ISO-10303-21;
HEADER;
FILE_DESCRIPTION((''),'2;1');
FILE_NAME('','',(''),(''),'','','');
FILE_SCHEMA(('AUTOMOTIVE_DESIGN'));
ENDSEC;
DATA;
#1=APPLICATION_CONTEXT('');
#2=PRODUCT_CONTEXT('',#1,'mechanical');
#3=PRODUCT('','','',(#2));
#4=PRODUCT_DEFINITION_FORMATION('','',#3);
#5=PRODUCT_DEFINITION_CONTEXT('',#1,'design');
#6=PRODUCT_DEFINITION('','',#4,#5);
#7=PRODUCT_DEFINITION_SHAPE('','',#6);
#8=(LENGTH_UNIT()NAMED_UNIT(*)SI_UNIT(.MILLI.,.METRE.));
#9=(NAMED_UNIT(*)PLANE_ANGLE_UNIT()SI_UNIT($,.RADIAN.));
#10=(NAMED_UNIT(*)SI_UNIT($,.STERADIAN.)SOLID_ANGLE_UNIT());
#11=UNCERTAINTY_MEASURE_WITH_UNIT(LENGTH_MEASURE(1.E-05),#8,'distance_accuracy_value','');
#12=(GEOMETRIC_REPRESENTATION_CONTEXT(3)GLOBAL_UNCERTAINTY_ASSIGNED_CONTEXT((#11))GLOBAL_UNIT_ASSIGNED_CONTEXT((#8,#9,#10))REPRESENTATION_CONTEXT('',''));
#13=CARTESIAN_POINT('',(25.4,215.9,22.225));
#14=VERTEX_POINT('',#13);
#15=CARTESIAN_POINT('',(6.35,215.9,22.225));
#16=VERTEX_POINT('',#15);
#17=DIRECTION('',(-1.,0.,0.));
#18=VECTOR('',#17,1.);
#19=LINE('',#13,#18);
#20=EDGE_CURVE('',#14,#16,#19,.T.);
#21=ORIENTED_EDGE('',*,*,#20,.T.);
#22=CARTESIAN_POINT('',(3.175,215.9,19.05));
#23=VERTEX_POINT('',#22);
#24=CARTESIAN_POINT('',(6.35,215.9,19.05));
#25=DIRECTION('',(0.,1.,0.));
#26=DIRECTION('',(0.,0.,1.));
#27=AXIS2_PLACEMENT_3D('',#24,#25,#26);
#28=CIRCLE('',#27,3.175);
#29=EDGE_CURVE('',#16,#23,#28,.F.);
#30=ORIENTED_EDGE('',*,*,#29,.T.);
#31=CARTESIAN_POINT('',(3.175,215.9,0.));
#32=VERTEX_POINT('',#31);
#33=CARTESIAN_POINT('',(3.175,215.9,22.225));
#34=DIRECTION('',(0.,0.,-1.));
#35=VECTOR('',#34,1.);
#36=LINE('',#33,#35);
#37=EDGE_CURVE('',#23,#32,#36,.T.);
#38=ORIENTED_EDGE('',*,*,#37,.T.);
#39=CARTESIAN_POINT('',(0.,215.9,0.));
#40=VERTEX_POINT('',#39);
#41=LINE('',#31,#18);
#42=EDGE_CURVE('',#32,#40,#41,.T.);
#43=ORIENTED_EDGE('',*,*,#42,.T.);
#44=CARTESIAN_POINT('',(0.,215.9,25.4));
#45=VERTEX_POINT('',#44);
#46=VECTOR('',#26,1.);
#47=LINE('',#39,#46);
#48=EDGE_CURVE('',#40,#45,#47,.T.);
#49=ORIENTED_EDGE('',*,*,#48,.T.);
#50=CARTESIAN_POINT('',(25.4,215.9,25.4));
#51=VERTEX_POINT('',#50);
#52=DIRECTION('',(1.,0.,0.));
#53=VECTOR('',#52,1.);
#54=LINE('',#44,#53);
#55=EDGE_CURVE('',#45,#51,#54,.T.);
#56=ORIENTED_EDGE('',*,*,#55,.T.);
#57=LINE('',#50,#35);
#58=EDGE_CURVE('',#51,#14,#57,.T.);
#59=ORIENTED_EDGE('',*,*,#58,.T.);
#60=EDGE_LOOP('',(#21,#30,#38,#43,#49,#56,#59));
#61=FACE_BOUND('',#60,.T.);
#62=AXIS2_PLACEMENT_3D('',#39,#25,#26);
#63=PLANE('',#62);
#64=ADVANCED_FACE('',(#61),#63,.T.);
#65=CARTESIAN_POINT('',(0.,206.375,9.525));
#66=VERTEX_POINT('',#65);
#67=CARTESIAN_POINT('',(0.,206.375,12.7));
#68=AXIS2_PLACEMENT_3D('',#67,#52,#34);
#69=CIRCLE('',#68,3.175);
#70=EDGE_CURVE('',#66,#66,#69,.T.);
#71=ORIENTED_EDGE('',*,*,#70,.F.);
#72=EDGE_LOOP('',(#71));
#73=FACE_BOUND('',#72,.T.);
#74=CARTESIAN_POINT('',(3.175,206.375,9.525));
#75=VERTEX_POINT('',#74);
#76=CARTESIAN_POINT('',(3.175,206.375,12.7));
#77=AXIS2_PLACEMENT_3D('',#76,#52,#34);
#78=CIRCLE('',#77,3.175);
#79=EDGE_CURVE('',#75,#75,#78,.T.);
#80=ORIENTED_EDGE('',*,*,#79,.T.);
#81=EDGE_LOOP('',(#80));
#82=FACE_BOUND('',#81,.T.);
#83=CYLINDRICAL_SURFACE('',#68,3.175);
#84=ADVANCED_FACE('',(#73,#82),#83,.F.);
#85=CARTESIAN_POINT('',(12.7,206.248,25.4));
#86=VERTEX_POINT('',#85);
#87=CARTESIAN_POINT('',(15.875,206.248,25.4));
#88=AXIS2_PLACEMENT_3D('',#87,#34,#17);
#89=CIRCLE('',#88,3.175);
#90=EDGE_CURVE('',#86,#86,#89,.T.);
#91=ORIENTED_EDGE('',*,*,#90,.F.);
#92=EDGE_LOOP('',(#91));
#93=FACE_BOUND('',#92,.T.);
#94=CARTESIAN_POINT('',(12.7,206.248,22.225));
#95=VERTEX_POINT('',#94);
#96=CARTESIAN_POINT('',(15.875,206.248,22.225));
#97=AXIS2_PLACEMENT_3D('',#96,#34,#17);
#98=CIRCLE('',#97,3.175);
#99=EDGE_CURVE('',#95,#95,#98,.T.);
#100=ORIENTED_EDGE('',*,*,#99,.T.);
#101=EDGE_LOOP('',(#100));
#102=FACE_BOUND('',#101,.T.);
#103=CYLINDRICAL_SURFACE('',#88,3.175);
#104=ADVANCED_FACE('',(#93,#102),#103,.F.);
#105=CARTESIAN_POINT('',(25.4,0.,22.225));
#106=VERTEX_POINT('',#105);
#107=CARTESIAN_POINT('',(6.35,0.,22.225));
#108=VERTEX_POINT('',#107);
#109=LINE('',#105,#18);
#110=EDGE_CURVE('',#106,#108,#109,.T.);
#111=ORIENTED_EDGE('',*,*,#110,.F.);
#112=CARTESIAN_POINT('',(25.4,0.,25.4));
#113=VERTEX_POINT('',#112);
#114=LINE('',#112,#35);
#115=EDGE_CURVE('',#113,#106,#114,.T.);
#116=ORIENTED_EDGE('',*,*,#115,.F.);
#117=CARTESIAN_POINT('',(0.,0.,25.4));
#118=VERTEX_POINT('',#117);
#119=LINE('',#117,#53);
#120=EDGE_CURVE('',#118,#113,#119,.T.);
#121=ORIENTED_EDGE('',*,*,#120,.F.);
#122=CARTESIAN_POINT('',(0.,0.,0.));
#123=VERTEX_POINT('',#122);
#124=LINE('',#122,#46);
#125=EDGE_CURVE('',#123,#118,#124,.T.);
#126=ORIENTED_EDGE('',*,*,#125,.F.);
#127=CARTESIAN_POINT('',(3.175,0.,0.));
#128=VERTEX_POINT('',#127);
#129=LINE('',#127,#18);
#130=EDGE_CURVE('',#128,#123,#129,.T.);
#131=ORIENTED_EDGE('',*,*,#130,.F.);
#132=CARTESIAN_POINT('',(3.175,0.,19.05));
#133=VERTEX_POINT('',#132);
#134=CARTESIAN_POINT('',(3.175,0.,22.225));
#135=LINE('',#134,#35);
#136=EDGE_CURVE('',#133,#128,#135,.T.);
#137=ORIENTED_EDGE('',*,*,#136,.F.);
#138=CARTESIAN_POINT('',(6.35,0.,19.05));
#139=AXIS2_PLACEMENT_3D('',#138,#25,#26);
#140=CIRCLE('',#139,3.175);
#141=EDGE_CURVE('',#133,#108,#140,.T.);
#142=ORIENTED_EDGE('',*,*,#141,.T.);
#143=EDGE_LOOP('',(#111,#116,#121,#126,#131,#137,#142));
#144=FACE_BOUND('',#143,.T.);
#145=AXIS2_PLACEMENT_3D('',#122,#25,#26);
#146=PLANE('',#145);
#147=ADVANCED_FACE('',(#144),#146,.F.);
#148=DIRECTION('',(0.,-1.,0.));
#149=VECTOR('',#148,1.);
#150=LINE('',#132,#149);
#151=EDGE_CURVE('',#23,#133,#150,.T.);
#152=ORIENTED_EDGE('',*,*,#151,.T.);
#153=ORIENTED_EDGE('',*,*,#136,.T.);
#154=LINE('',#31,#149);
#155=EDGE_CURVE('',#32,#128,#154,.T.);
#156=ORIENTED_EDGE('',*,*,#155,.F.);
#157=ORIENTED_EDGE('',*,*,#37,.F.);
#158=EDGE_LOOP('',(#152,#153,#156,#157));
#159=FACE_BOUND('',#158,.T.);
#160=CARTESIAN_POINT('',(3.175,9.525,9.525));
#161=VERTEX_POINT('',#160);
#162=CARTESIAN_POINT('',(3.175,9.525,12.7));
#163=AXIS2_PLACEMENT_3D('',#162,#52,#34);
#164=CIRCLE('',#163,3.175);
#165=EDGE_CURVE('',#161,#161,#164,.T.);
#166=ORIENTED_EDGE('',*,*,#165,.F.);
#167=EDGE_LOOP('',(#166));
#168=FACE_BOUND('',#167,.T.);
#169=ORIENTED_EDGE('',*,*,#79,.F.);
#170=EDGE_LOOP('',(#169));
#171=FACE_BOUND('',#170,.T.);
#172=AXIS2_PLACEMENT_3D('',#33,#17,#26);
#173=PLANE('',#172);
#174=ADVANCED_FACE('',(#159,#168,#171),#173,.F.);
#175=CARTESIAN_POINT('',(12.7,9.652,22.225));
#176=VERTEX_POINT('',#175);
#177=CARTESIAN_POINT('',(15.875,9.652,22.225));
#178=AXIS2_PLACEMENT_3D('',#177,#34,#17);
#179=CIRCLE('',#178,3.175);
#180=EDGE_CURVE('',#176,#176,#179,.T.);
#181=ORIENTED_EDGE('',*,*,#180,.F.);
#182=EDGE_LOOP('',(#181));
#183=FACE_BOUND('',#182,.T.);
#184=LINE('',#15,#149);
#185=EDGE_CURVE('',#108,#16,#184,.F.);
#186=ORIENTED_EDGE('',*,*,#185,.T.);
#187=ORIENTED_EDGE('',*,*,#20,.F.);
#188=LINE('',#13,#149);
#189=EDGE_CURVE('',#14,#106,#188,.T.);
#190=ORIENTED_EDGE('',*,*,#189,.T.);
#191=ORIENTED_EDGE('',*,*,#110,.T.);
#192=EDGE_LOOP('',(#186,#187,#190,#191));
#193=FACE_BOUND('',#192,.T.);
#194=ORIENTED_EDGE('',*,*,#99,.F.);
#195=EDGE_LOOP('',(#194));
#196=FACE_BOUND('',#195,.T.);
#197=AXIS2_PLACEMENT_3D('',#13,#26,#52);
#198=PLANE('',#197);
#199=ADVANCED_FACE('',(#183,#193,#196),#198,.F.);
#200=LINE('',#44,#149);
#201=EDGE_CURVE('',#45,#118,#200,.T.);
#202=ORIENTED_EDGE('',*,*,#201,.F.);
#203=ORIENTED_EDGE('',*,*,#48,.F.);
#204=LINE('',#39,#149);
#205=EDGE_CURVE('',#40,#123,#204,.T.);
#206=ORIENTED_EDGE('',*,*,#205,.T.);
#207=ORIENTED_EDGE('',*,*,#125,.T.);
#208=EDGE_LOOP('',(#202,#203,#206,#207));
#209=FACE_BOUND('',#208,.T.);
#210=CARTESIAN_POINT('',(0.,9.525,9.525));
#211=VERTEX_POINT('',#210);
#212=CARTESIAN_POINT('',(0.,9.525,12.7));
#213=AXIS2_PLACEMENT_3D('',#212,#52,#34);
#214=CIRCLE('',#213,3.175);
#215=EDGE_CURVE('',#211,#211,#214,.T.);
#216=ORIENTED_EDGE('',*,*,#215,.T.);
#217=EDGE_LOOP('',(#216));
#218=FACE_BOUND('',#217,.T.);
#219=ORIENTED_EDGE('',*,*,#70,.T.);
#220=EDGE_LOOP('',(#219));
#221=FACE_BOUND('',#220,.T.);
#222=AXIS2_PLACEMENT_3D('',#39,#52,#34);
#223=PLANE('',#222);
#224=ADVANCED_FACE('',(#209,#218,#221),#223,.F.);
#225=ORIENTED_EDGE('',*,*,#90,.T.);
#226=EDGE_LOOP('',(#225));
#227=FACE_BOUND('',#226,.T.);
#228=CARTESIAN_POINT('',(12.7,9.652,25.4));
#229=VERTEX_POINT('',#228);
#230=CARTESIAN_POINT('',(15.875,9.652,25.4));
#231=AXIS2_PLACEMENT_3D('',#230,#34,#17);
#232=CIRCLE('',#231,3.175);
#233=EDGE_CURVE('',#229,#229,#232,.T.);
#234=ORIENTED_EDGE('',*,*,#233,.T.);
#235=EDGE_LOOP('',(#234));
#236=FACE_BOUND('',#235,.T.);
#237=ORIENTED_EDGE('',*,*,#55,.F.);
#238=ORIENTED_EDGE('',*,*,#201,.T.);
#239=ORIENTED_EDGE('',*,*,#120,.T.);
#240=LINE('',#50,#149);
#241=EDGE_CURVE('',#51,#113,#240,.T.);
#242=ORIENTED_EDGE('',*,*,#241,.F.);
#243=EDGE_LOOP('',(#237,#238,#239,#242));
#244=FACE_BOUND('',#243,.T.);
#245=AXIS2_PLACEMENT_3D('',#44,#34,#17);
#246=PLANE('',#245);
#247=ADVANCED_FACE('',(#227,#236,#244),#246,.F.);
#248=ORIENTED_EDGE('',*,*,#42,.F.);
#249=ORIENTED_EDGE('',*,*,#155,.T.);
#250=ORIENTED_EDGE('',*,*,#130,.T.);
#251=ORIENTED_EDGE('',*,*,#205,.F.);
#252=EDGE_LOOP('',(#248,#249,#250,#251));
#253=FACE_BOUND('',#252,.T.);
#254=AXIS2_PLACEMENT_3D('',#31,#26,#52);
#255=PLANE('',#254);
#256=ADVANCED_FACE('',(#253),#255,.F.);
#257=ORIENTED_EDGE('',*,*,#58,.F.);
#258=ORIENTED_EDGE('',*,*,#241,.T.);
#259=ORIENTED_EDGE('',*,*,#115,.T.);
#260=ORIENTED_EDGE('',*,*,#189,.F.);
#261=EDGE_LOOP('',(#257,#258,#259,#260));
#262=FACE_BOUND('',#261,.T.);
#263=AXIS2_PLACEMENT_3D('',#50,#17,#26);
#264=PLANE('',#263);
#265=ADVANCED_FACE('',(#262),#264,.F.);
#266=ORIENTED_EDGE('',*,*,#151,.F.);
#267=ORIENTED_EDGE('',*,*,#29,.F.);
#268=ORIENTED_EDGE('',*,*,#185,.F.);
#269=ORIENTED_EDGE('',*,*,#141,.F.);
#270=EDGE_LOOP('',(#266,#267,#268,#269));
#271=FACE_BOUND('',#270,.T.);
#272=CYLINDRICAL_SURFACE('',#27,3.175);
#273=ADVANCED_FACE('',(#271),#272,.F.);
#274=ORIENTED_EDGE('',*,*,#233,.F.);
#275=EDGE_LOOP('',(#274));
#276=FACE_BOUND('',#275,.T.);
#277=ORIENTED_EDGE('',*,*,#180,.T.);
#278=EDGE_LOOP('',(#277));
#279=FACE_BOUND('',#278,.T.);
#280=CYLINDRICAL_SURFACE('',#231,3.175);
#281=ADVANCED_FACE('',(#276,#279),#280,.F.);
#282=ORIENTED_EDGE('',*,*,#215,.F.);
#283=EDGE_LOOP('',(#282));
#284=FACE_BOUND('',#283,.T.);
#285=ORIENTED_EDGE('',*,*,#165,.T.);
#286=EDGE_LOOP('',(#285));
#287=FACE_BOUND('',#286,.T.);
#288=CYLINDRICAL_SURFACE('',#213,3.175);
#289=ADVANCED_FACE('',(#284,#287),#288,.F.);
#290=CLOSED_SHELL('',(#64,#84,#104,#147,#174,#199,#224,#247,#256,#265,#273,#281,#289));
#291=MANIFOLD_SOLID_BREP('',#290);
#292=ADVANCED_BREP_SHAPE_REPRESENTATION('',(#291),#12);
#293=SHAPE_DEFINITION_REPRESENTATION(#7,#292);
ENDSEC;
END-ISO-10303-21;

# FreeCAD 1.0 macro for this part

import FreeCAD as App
import Part
import Sketcher

V = App.Vector
Q = App.Units.Quantity


def edges_at(feature, points):
    """Names of the edges that pass closest to the given points."""
    edges = feature.Shape.Edges
    near = lambda p: min(range(len(edges)), key=lambda i: edges[i].distToShape(Part.Vertex(*p))[0])
    return sorted({f"Edge{near(p) + 1}" for p in points})

doc = App.newDocument("Part")
body = doc.addObject("PartDesign::Body", "Body")

# Sketch on XZ plane
sketch1 = body.newObject("Sketcher::SketchObject", "Sketch")
sketch1.AttachmentSupport = (doc.getObject("XZ_Plane"), [""])
sketch1.MapMode = "FlatFace"
sketch1.addGeometry([
    Part.LineSegment(V(0, 0, 0), V(0, 25.4, 0)),  # 0
    Part.LineSegment(V(0, 25.4, 0), V(25.4, 25.4, 0)),  # 1
    Part.LineSegment(V(25.4, 25.4, 0), V(25.4, 22.2, 0)),  # 2
    Part.LineSegment(V(25.4, 22.2, 0), V(3.2, 22.2, 0)),  # 3
    Part.LineSegment(V(3.2, 22.2, 0), V(3.2, 0, 0)),  # 4
    Part.LineSegment(V(3.2, 0, 0), V(0, 0, 0)),  # 5
], False)
sketch1.addConstraint([
    Sketcher.Constraint("Coincident", 0, 2, 1, 1),
    Sketcher.Constraint("Coincident", 1, 2, 2, 1),
    Sketcher.Constraint("Coincident", 2, 2, 3, 1),
    Sketcher.Constraint("Coincident", 3, 2, 4, 1),
    Sketcher.Constraint("Coincident", 4, 2, 5, 1),
    Sketcher.Constraint("Coincident", 5, 2, 0, 1),
    Sketcher.Constraint("Vertical", 0),
    Sketcher.Constraint("Horizontal", 1),
    Sketcher.Constraint("Vertical", 2),
    Sketcher.Constraint("Horizontal", 3),
    Sketcher.Constraint("Vertical", 4),
    Sketcher.Constraint("Horizontal", 5),
    Sketcher.Constraint("Coincident", 5, 2, -1, 1),
    Sketcher.Constraint("Equal", 1, 0),
    Sketcher.Constraint("Equal", 5, 2),
    Sketcher.Constraint("DistanceX", 1, 1, 1, 2, Q("1 in")),
    Sketcher.Constraint("DistanceX", 3, 2, 3, 1, Q("0.875 in")),
])
pad1 = body.newObject("PartDesign::Pad", "Pad")
pad1.Profile = sketch1
pad1.Length = Q("8.5 in")
pad1.Reversed = True
doc.recompute()

fillet = body.newObject("PartDesign::Fillet", "Fillet")
fillet.Base = (pad1, edges_at(pad1, [(3.175, 107.95, 22.225)]))
fillet.Radius = Q("0.125 in")

# Sketch on XY plane
sketch2 = body.newObject("Sketcher::SketchObject", "Sketch001")
sketch2.AttachmentSupport = (doc.getObject("XY_Plane"), [""])
sketch2.MapMode = "FlatFace"
sketch2.AttachmentOffset = App.Placement(V(0, 0, 0.875 * 25.4), App.Rotation())
sketch2.addGeometry(Part.Circle(V(15.9, 206.2, 0), V(0, 0, 1), 3.2), False)
sketch2.addConstraint([
    Sketcher.Constraint("Diameter", 0, Q("0.25 in")),
    Sketcher.Constraint("DistanceY", -1, 1, 0, 3, Q("8.12 in")),
    Sketcher.Constraint("DistanceX", -1, 1, 0, 3, Q("0.625 in")),
])
pocket1 = body.newObject("PartDesign::Pocket", "Pocket")
pocket1.Profile = sketch2
pocket1.Type = "ThroughAll"
pocket1.Reversed = True

# Sketch on XY plane
sketch3 = body.newObject("Sketcher::SketchObject", "Sketch002")
sketch3.AttachmentSupport = (doc.getObject("XY_Plane"), [""])
sketch3.MapMode = "FlatFace"
sketch3.AttachmentOffset = App.Placement(V(0, 0, 0.875 * 25.4), App.Rotation())
sketch3.addGeometry(Part.Circle(V(15.9, 9.7, 0), V(0, 0, 1), 3.2), False)
sketch3.addConstraint([
    Sketcher.Constraint("Diameter", 0, Q("0.25 in")),
    Sketcher.Constraint("DistanceY", -1, 1, 0, 3, Q("0.38 in")),
    Sketcher.Constraint("DistanceX", -1, 1, 0, 3, Q("0.625 in")),
])
pocket2 = body.newObject("PartDesign::Pocket", "Pocket001")
pocket2.Profile = sketch3
pocket2.Type = "ThroughAll"
pocket2.Reversed = True

# Sketch on YZ plane
sketch4 = body.newObject("Sketcher::SketchObject", "Sketch003")
sketch4.AttachmentSupport = (doc.getObject("YZ_Plane"), [""])
sketch4.MapMode = "FlatFace"
sketch4.AttachmentOffset = App.Placement(V(0, 0, 0.125 * 25.4), App.Rotation())
sketch4.addGeometry(Part.Circle(V(206.4, 12.7, 0), V(0, 0, 1), 3.2), False)
sketch4.addConstraint([
    Sketcher.Constraint("Diameter", 0, Q("0.25 in")),
    Sketcher.Constraint("DistanceY", -1, 1, 0, 3, Q("0.5 in")),
    Sketcher.Constraint("DistanceX", -1, 1, 0, 3, Q("8.125 in")),
])
pocket3 = body.newObject("PartDesign::Pocket", "Pocket002")
pocket3.Profile = sketch4
pocket3.Type = "ThroughAll"

# Sketch on YZ plane
sketch5 = body.newObject("Sketcher::SketchObject", "Sketch004")
sketch5.AttachmentSupport = (doc.getObject("YZ_Plane"), [""])
sketch5.MapMode = "FlatFace"
sketch5.AttachmentOffset = App.Placement(V(0, 0, 0.125 * 25.4), App.Rotation())
sketch5.addGeometry(Part.Circle(V(9.5, 12.7, 0), V(0, 0, 1), 3.2), False)
sketch5.addConstraint([
    Sketcher.Constraint("Diameter", 0, Q("0.25 in")),
    Sketcher.Constraint("DistanceY", -1, 1, 0, 3, Q("0.5 in")),
    Sketcher.Constraint("DistanceX", -1, 1, 0, 3, Q("0.375 in")),
])
pocket4 = body.newObject("PartDesign::Pocket", "Pocket003")
pocket4.Profile = sketch5
pocket4.Type = "ThroughAll"

doc.recompute()
